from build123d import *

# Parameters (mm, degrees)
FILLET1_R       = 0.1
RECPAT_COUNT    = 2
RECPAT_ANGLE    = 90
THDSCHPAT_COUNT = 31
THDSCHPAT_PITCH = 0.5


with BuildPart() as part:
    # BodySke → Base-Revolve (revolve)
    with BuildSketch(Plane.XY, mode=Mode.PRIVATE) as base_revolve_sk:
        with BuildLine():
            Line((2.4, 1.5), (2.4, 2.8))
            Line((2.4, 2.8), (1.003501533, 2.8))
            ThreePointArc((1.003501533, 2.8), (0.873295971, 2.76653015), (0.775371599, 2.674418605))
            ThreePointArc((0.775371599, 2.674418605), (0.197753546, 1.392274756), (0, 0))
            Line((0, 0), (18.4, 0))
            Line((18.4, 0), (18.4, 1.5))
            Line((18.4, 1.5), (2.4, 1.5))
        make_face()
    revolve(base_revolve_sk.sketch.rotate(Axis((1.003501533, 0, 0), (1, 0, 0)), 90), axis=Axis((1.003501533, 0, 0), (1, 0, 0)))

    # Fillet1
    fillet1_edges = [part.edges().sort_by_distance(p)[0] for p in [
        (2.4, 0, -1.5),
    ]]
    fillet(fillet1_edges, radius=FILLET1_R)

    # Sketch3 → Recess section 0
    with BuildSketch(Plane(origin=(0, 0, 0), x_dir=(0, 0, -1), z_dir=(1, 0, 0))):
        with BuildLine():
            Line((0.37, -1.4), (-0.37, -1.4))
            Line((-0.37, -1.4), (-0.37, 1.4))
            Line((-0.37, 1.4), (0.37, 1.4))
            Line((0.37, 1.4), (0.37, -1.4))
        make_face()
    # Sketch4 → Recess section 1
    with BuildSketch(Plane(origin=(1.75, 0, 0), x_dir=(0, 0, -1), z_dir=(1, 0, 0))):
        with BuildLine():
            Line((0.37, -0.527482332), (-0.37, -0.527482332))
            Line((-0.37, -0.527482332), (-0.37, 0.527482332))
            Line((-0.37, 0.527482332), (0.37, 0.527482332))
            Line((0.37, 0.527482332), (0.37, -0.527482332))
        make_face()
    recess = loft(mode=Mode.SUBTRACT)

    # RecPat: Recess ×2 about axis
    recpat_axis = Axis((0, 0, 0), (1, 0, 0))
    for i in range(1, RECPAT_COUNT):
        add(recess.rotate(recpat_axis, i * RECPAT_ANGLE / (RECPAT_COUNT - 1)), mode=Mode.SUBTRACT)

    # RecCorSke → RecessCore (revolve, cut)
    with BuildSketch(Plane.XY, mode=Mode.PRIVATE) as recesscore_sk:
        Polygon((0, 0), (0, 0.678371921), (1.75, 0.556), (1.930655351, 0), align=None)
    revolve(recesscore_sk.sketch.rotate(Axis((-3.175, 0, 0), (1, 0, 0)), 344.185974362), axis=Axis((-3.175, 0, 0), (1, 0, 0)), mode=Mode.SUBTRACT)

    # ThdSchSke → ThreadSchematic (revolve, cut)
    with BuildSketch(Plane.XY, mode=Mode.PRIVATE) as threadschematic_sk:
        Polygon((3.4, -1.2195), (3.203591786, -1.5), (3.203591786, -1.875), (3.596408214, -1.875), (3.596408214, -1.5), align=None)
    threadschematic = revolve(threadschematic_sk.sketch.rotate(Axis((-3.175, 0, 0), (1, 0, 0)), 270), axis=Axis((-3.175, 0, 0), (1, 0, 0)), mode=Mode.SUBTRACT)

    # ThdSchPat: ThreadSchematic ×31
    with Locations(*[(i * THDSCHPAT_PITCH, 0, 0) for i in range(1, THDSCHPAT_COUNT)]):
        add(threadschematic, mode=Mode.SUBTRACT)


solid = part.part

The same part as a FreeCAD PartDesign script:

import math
import FreeCAD as App
import Part
import Sketcher
from FreeCAD import Vector
Q = App.Units.Quantity


def edges_at(feature, points):
    """Names of the edges that pass closest to the given points."""
    edges = feature.Shape.Edges
    near = lambda p: min(range(len(edges)), key=lambda i: edges[i].distToShape(Part.Vertex(*p))[0])
    return sorted({f"Edge{near(p) + 1}" for p in points})


def add_polygon(sketch, points):
    """Adds a closed chain of lines whose ends are joined by coincident constraints."""
    first, n = sketch.GeometryCount, len(points)
    for a, b in zip(points, points[1:] + points[:1]):
        sketch.addGeometry(Part.LineSegment(App.Vector(*a, 0), App.Vector(*b, 0)), False)
    for i in range(n):
        sketch.addConstraint(Sketcher.Constraint("Coincident", first + i, 2, first + (i + 1) % n, 1))

doc = App.newDocument("Part")
params = doc.addObject("Spreadsheet::Sheet", "Params")
for row, (alias, value) in enumerate([
    ("sketch1_radius", "5 mm"),
    ("sketch1_width", "16 mm"),
    ("sketch1_radius2", "0.27 mm"),
    ("sketch1_width2", "18.4 mm"),
    ("sketch1_height", "1.3 mm"),
    ("revolution_angle", "360 deg"),
    ("fillet_radius", "0.1 mm"),
    ("sketch2_width", "2.8 mm"),
    ("sketch2_height", "0.74 mm"),
    ("sketch3_height", "0.74 mm"),
    ("groove_angle", "360 deg"),
    ("groove2_angle", "360 deg"),
    ("linearpattern_pitch", "0.5 mm"),
], start=1):
    params.set(f"A{row}", alias)
    params.set(f"B{row}", "=" + value)
    params.setAlias(f"B{row}", alias)

body = doc.addObject("PartDesign::Body", "Body")

sketch1 = doc.addObject("Sketcher::SketchObject", "Sketch")
body.addObject(sketch1)
sketch1.AttachmentSupport = (doc.XY_Plane, [""])
sketch1.MapMode = "FlatFace"
sketch1.addGeometry([
    Part.LineSegment(Vector(2.4, 1.5, 0), Vector(2.4, 2.8, 0)),
    Part.LineSegment(Vector(2.4, 2.8, 0), Vector(1, 2.8, 0)),
    Part.ArcOfCircle(Part.Circle(Vector(1, 2.53, 0), Vector(0, 0, 1), 0.27), math.radians(90), math.radians(148)),
    Part.ArcOfCircle(Part.Circle(Vector(5, 0, 0), Vector(0, 0, 1), 5), math.radians(148), math.radians(180)),
    Part.LineSegment(Vector(0, 0, 0), Vector(18.4, 0, 0)),
    Part.LineSegment(Vector(18.4, 0, 0), Vector(18.4, 1.5, 0)),
    Part.LineSegment(Vector(18.4, 1.5, 0), Vector(2.4, 1.5, 0)),
], False)
sketch1.addConstraint([
    Sketcher.Constraint("Coincident", 0, 2, 1, 1),
    Sketcher.Constraint("Tangent", 1, 2, 2, 1),
    Sketcher.Constraint("Tangent", 2, 2, 3, 1),
    Sketcher.Constraint("Coincident", 3, 2, 4, 1),
    Sketcher.Constraint("Coincident", 4, 2, 5, 1),
    Sketcher.Constraint("Coincident", 5, 2, 6, 1),
    Sketcher.Constraint("Coincident", 6, 2, 0, 1),
    Sketcher.Constraint("Vertical", 0),
    Sketcher.Constraint("Horizontal", 1),
    Sketcher.Constraint("Horizontal", 4),
    Sketcher.Constraint("Vertical", 5),
    Sketcher.Constraint("Horizontal", 6),
    Sketcher.Constraint("Coincident", 3, 2, -1, 1),
    Sketcher.Constraint("PointOnObject", 3, 3, -1),
    Sketcher.Constraint("Radius", 3, Q("5 mm")),
    Sketcher.Constraint("DistanceX", 6, 2, 6, 1, Q("16 mm")),
    Sketcher.Constraint("Radius", 2, Q("0.27 mm")),
    Sketcher.Constraint("DistanceX", 4, 1, 4, 2, Q("18.4 mm")),
    Sketcher.Constraint("DistanceY", 0, 1, 0, 2, Q("1.3 mm")),
    Sketcher.Constraint("DistanceY", 5, 1, 5, 2, Q("1.5 mm")),
])
sketch1.setExpression("Constraints[14]", "Params.sketch1_radius")
sketch1.setExpression("Constraints[15]", "Params.sketch1_width")
sketch1.setExpression("Constraints[16]", "Params.sketch1_radius2")
sketch1.setExpression("Constraints[17]", "Params.sketch1_width2")
sketch1.setExpression("Constraints[18]", "Params.sketch1_height")
revolution = doc.addObject("PartDesign::Revolution", "Revolution")
body.addObject(revolution)
revolution.Profile = sketch1
revolution.ReferenceAxis = (sketch1, ["H_Axis"])
revolution.setExpression("Angle", "Params.revolution_angle")
doc.recompute()

fillet = doc.addObject("PartDesign::Fillet", "Fillet")
body.addObject(fillet)
fillet.Base = (revolution, edges_at(revolution, [(2.4, 0, -1.5)]))
fillet.setExpression("Radius", "Params.fillet_radius")

sketch2 = doc.addObject("Sketcher::SketchObject", "Sketch001")
body.addObject(sketch2)
sketch2.AttachmentSupport = (doc.YZ_Plane, [""])
sketch2.MapMode = "FlatFace"
add_polygon(sketch2, [(-1.4, 0.4), (-1.4, -0.4), (1.4, -0.4), (1.4, 0.4)])
sketch2.addConstraint([
    Sketcher.Constraint("Vertical", 0),
    Sketcher.Constraint("Horizontal", 1),
    Sketcher.Constraint("Vertical", 2),
    Sketcher.Constraint("Horizontal", 3),
    Sketcher.Constraint("Symmetric", 0, 2, 2, 2, -1, 1),
    Sketcher.Constraint("DistanceX", 1, 1, 1, 2, Q("2.8 mm")),
    Sketcher.Constraint("DistanceY", 0, 2, 0, 1, Q("0.74 mm")),
])
sketch2.setExpression("Constraints[9]", "Params.sketch2_width")
sketch2.setExpression("Constraints[10]", "Params.sketch2_height")

sketch3 = doc.addObject("Sketcher::SketchObject", "Sketch002")
body.addObject(sketch3)
sketch3.AttachmentSupport = (doc.YZ_Plane, [""])
sketch3.MapMode = "FlatFace"
sketch3.AttachmentOffset = App.Placement(Vector(0, 0, 1.75), App.Rotation())
add_polygon(sketch3, [(-0.5, 0.4), (-0.5, -0.4), (0.5, -0.4), (0.5, 0.4)])
sketch3.addConstraint([
    Sketcher.Constraint("Vertical", 0),
    Sketcher.Constraint("Horizontal", 1),
    Sketcher.Constraint("Vertical", 2),
    Sketcher.Constraint("Horizontal", 3),
    Sketcher.Constraint("Symmetric", 0, 2, 2, 2, -1, 1),
    Sketcher.Constraint("DistanceY", 0, 2, 0, 1, Q("0.74 mm")),
    Sketcher.Constraint("DistanceX", 1, 1, 1, 2, Q("1.054965 mm")),
])
sketch3.setExpression("Constraints[9]", "Params.sketch3_height")

subtractiveloft = doc.addObject("PartDesign::SubtractiveLoft", "SubtractiveLoft")
body.addObject(subtractiveloft)
subtractiveloft.Profile = sketch2
subtractiveloft.Sections = [sketch3]
doc.recompute()

polarpattern = doc.addObject("PartDesign::PolarPattern", "PolarPattern")
body.addObject(polarpattern)
polarpattern.Originals = [subtractiveloft]
polarpattern.Axis = (doc.X_Axis, [""])
polarpattern.Angle = 90
polarpattern.Occurrences = 2
body.Tip = polarpattern

sketch4 = doc.addObject("Sketcher::SketchObject", "Sketch003")
body.addObject(sketch4)
sketch4.AttachmentSupport = (doc.XY_Plane, [""])
sketch4.MapMode = "FlatFace"
add_polygon(sketch4, [(0, 0.7), (0, 0), (1.9, 0), (1.8, 0.6)])
sketch4.addConstraint([
    Sketcher.Constraint("Vertical", 0),
    Sketcher.Constraint("Horizontal", 1),
    Sketcher.Constraint("Coincident", 0, 2, -1, 1),
    Sketcher.Constraint("Angle", 2, Q("108 deg")),
    Sketcher.Constraint("Angle", 3, Q("176 deg")),
    Sketcher.Constraint("DistanceX", -1, 1, 2, 2, Q("1.75 mm")),
    Sketcher.Constraint("DistanceY", -1, 1, 2, 2, Q("0.556 mm")),
])
groove = doc.addObject("PartDesign::Groove", "Groove")
body.addObject(groove)
groove.Profile = sketch4
groove.ReferenceAxis = (sketch4, ["H_Axis"])
groove.setExpression("Angle", "Params.groove_angle")

sketch5 = doc.addObject("Sketcher::SketchObject", "Sketch004")
body.addObject(sketch5)
sketch5.AttachmentSupport = (doc.XY_Plane, [""])
sketch5.MapMode = "FlatFace"
add_polygon(sketch5, [(3.4, -1.22), (3.2, -1.5), (3.2, -1.88), (3.6, -1.88), (3.6, -1.5)])
sketch5.addConstraint([
    Sketcher.Constraint("Vertical", 1),
    Sketcher.Constraint("Horizontal", 2),
    Sketcher.Constraint("Vertical", 3),
    Sketcher.Constraint("Horizontal", 0, 2, 3, 2),
    Sketcher.Constraint("Equal", 0, 4),
    Sketcher.Constraint("Angle", 0, Q("-125 deg")),
    Sketcher.Constraint("DistanceY", 0, 2, -1, 1, Q("1.5 mm")),
    Sketcher.Constraint("DistanceX", -1, 1, 4, 2, Q("3.4 mm")),
    Sketcher.Constraint("DistanceY", 1, 2, 1, 1, Q("0.375 mm")),
    Sketcher.Constraint("DistanceY", 4, 2, -1, 1, Q("1.2195 mm")),
])
groove2 = doc.addObject("PartDesign::Groove", "Groove001")
body.addObject(groove2)
groove2.Profile = sketch5
groove2.ReferenceAxis = (sketch5, ["H_Axis"])
groove2.setExpression("Angle", "Params.groove2_angle")
doc.recompute()

linearpattern = doc.addObject("PartDesign::LinearPattern", "LinearPattern")
body.addObject(linearpattern)
linearpattern.Originals = [groove2]
linearpattern.Direction = (doc.X_Axis, [""])
linearpattern.Mode = "offset"
linearpattern.setExpression("Offset", "Params.linearpattern_pitch")
linearpattern.Occurrences = 31
body.Tip = linearpattern

doc.recompute()
